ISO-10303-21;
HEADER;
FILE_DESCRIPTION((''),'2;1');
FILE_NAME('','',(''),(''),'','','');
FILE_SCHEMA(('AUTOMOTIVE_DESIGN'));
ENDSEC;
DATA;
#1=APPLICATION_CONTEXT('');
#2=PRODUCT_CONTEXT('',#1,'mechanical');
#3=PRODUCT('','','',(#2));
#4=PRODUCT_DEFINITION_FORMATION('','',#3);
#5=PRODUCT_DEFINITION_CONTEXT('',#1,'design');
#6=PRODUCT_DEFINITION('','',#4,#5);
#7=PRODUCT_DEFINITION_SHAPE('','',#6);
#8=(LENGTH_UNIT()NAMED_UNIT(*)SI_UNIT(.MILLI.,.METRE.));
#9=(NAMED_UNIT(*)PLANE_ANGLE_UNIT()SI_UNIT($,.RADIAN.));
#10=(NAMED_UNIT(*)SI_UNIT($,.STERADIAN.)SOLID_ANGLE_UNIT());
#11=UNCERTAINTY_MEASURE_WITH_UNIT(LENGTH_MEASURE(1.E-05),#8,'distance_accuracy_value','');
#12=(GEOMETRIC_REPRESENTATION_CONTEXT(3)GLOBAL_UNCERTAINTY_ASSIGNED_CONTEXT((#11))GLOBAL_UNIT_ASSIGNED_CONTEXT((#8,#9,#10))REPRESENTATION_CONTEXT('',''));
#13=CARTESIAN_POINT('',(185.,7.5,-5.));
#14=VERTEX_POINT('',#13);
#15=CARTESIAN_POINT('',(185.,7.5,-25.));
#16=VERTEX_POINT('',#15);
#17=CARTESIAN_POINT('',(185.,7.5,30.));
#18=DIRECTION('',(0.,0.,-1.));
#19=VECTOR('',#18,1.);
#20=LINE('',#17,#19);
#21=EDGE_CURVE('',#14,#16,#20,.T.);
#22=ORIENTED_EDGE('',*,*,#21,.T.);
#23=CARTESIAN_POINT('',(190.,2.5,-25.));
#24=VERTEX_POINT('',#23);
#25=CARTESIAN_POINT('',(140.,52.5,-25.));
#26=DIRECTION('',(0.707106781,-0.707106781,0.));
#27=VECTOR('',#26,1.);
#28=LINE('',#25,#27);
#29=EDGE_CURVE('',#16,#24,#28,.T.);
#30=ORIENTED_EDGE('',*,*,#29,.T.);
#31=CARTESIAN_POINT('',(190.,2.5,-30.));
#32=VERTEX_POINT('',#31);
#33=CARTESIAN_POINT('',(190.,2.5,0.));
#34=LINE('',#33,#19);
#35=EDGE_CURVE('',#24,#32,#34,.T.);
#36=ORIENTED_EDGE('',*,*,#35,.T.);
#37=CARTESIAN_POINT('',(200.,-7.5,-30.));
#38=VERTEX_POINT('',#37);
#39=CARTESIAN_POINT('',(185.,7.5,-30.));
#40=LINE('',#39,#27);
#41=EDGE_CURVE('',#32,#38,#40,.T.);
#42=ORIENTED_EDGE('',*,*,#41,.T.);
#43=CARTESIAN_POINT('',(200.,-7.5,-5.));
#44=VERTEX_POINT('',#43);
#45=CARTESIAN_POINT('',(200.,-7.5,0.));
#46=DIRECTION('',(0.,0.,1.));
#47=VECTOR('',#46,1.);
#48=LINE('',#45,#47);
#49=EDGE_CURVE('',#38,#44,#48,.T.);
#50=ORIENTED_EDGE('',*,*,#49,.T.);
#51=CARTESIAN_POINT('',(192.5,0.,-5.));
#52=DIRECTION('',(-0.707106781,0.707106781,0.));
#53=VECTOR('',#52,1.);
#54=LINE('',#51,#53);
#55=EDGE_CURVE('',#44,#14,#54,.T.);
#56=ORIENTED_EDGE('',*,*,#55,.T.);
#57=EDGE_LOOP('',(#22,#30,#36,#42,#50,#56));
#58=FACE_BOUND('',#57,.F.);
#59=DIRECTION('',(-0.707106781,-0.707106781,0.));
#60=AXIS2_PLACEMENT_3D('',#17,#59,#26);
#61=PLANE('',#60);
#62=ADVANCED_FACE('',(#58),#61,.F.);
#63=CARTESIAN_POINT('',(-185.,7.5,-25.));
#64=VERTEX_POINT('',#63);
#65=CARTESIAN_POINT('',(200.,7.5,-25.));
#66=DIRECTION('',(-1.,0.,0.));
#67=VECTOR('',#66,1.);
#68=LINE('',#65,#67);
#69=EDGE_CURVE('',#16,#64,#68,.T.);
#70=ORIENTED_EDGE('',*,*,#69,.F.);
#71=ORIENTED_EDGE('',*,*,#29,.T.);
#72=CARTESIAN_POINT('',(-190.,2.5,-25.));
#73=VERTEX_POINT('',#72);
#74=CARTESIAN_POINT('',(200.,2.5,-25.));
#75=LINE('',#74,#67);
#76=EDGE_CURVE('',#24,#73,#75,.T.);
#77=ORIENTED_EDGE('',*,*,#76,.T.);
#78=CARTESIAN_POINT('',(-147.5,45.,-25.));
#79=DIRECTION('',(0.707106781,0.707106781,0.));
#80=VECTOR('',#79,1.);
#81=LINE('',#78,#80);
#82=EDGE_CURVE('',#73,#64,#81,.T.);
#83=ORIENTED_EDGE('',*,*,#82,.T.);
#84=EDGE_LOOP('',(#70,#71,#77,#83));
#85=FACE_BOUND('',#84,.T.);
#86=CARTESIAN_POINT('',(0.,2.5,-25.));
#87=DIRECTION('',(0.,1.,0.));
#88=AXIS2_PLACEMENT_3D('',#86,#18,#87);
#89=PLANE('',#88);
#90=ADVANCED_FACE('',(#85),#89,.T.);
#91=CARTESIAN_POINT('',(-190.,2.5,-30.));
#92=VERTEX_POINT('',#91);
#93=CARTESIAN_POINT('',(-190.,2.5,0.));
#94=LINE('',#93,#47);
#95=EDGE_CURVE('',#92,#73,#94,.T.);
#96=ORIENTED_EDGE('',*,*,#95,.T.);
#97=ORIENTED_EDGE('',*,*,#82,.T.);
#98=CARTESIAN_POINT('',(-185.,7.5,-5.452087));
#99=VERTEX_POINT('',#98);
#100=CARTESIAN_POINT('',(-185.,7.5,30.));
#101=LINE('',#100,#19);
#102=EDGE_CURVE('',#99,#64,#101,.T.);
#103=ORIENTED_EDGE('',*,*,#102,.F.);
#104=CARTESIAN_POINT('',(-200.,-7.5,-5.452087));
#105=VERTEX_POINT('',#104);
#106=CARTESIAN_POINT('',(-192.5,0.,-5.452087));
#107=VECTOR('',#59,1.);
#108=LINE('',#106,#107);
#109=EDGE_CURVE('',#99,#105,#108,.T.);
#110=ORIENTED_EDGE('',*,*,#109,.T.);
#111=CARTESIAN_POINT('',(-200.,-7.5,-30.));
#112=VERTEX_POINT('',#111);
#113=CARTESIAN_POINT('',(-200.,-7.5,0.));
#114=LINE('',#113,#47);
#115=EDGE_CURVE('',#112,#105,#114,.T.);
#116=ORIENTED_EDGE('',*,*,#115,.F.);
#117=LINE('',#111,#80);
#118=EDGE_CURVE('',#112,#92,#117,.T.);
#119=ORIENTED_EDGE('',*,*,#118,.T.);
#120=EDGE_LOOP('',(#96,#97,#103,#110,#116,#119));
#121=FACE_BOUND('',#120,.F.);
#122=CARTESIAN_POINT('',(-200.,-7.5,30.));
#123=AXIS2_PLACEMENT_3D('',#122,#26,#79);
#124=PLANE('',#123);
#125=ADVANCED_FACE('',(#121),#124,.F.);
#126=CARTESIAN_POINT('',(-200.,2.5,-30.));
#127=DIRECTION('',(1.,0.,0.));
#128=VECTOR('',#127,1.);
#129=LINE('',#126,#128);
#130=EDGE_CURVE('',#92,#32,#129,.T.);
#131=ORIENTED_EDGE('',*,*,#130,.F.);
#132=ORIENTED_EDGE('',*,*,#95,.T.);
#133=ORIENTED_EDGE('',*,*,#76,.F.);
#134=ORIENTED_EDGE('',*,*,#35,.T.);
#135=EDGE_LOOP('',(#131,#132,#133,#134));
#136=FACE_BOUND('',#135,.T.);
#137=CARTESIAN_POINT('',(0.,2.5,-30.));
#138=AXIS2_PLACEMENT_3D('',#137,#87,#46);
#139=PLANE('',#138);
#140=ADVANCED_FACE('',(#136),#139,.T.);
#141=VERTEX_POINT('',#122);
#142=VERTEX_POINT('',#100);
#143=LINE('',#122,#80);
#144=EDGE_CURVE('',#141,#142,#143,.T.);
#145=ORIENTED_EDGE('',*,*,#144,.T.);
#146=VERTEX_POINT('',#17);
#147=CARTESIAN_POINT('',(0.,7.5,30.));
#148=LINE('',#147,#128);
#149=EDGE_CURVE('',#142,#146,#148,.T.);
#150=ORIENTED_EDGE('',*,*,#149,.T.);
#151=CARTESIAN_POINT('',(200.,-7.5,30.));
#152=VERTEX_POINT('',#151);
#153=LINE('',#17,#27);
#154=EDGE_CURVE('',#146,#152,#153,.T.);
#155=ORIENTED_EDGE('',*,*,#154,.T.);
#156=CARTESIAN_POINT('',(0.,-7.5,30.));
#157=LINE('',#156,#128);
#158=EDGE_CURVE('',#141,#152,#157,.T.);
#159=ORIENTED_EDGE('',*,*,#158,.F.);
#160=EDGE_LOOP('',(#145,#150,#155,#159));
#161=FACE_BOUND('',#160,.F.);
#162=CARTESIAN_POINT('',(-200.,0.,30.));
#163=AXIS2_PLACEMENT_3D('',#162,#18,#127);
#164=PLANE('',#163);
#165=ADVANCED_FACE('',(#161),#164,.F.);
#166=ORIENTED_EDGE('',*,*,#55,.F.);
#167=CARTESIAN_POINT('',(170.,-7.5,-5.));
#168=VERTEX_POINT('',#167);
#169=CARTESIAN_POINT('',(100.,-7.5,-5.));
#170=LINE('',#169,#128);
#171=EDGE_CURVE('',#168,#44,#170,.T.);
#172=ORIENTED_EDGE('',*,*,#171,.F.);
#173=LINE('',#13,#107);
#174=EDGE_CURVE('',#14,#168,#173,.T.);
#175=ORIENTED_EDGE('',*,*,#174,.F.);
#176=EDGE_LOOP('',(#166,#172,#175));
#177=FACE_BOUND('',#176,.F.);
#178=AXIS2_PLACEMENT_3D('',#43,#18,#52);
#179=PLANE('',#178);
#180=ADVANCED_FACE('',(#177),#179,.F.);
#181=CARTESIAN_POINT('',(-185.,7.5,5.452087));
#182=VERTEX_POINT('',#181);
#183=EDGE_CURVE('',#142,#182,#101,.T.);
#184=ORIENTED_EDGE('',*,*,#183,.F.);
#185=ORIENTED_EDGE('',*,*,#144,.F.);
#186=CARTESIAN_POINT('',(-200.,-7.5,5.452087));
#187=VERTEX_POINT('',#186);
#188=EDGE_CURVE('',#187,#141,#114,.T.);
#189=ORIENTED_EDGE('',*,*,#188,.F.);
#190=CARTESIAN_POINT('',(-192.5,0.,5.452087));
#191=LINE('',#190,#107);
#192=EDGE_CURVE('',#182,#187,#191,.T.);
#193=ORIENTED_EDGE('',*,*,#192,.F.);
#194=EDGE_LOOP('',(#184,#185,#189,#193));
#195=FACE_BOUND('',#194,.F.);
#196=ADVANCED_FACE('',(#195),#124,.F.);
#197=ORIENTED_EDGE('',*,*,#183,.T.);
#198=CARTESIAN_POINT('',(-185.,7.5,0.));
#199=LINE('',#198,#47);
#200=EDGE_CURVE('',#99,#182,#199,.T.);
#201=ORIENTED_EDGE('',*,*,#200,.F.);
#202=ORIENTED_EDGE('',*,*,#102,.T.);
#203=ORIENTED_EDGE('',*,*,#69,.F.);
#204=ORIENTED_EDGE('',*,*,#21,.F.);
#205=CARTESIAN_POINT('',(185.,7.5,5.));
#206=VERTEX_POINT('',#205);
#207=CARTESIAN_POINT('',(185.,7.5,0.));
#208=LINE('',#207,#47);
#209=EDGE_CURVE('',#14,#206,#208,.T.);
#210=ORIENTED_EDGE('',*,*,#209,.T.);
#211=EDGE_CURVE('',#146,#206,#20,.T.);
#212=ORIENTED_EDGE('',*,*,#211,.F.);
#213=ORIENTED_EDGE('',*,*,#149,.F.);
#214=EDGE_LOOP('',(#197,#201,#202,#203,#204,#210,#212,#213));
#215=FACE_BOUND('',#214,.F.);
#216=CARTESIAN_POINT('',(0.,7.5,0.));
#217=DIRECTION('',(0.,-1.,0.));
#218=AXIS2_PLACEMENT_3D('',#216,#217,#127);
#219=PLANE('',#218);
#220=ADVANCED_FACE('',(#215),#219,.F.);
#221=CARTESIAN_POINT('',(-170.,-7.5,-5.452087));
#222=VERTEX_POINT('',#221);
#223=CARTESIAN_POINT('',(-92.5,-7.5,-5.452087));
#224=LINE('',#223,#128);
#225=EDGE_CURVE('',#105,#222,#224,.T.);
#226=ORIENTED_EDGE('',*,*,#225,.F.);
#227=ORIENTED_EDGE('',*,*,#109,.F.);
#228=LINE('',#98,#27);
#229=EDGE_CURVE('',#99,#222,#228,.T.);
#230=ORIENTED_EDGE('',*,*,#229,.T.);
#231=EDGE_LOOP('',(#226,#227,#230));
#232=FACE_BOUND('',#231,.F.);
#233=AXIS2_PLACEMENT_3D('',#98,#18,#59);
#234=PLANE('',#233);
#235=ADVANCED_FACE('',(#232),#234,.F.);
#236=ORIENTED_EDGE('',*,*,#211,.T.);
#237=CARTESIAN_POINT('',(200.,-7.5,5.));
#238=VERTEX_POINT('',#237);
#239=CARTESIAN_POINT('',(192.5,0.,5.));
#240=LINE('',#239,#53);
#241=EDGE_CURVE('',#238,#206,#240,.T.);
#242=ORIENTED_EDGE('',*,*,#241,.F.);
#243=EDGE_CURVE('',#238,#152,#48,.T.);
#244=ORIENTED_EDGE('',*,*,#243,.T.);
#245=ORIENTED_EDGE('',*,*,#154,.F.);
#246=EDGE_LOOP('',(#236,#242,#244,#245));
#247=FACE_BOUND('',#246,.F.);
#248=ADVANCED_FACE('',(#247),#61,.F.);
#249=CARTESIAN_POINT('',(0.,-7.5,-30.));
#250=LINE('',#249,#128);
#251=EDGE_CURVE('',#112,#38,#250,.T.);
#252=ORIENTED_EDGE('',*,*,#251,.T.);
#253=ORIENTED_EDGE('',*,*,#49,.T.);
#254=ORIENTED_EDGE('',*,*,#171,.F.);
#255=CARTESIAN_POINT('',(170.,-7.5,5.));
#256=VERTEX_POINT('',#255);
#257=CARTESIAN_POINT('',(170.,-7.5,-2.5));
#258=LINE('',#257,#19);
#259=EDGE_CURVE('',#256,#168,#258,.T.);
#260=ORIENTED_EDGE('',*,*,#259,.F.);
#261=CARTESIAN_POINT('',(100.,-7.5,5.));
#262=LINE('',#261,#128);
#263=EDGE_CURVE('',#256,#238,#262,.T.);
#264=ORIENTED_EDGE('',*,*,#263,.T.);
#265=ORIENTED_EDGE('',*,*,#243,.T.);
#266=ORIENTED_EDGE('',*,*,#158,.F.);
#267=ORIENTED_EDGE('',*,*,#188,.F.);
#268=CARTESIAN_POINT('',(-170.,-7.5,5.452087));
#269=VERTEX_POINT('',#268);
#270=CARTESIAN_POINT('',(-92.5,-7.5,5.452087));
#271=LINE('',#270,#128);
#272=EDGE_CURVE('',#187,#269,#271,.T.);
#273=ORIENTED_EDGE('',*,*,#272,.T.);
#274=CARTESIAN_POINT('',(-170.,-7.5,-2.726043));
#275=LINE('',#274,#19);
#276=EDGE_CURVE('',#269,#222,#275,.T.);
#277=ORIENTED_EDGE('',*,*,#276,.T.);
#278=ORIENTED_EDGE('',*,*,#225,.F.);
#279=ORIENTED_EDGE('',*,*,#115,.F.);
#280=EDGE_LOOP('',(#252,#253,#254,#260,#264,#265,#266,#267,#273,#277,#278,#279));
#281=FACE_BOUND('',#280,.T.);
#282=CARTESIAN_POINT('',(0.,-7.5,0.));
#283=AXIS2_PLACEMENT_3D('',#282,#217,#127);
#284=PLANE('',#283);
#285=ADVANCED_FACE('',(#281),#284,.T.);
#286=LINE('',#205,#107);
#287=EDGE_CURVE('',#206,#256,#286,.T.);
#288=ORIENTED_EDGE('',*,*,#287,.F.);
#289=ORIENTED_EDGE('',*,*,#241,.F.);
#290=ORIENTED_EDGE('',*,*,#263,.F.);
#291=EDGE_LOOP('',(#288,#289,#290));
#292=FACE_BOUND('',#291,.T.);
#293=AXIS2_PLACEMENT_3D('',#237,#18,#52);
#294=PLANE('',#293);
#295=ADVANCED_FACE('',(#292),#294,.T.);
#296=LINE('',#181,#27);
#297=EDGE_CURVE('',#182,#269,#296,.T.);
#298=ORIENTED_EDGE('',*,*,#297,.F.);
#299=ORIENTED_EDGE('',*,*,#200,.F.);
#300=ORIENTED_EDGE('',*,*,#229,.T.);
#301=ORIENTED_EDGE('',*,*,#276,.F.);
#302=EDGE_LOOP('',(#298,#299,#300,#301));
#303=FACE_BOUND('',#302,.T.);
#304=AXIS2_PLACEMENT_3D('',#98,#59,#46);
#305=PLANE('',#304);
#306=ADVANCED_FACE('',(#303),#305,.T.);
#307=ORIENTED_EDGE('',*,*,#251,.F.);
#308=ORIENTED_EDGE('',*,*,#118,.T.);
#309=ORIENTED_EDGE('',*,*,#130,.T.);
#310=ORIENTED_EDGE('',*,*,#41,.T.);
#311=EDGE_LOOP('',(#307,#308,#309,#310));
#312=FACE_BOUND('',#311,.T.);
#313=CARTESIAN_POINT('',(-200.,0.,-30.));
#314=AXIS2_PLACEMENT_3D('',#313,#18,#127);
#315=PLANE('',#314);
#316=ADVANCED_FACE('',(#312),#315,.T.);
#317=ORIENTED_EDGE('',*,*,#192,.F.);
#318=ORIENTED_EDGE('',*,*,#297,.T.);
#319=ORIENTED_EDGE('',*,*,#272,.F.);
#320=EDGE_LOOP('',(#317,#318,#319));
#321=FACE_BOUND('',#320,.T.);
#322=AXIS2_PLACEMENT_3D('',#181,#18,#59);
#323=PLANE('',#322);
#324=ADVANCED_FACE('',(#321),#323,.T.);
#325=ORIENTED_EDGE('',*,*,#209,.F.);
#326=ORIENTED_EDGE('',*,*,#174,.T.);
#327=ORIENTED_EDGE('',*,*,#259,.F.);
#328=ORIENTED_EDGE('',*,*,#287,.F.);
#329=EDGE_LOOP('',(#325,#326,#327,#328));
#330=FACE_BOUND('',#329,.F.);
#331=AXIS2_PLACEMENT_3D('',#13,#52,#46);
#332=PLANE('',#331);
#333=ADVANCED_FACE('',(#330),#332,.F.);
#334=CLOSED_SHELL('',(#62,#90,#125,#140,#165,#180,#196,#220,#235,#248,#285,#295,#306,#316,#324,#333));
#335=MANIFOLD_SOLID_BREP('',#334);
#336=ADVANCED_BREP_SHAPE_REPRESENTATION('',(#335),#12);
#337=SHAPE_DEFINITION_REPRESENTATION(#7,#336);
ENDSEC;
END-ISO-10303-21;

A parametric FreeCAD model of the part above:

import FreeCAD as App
import Part
import Sketcher

V = App.Vector
Q = App.Units.Quantity

doc = App.newDocument("Part")
body = doc.addObject("PartDesign::Body", "Body")

# Sketch on XZ plane
sketch1 = body.newObject("Sketcher::SketchObject", "Sketch")
sketch1.AttachmentSupport = (doc.getObject("XZ_Plane"), [""])
sketch1.MapMode = "FlatFace"
sketch1.addGeometry([
    Part.LineSegment(V(-200, 30, 0), V(-200, -30, 0)),
    Part.LineSegment(V(-200, -30, 0), V(200, -30, 0)),
    Part.LineSegment(V(200, -30, 0), V(200, 30, 0)),
    Part.LineSegment(V(200, 30, 0), V(-200, 30, 0)),
], False)
sketch1.addConstraint([
    Sketcher.Constraint("Coincident", 0, 2, 1, 1),
    Sketcher.Constraint("Coincident", 1, 2, 2, 1),
    Sketcher.Constraint("Coincident", 2, 2, 3, 1),
    Sketcher.Constraint("Coincident", 3, 2, 0, 1),
    Sketcher.Constraint("Vertical", 0),
    Sketcher.Constraint("Horizontal", 1),
    Sketcher.Constraint("Vertical", 2),
    Sketcher.Constraint("Horizontal", 3),
    Sketcher.Constraint("Symmetric", 0, 2, 2, 2, -1, 1),
    Sketcher.Constraint("DistanceX", 1, 1, 1, 2, Q("400 mm")),
    Sketcher.Constraint("DistanceY", 0, 2, 0, 1, Q("60 mm")),
])
pad1 = body.newObject("PartDesign::Pad", "Pad")
pad1.Profile = sketch1
pad1.Length = 15
pad1.Midplane = True

# Sketch on XY plane
sketch2 = body.newObject("Sketcher::SketchObject", "Sketch001")
sketch2.AttachmentSupport = (doc.getObject("XY_Plane"), [""])
sketch2.MapMode = "FlatFace"
sketch2.AttachmentOffset = App.Placement(V(0, 0, 30), App.Rotation())
sketch2.addGeometry([
    Part.LineSegment(V(-200, 7.5, 0), V(-200, -7.5, 0)),  # 0
    Part.LineSegment(V(-200, -7.5, 0), V(-185, 7.5, 0)),  # 1
    Part.LineSegment(V(-185, 7.5, 0), V(-200, 7.5, 0)),  # 2
    Part.LineSegment(V(185, 7.5, 0), V(200, -7.5, 0)),  # 3
    Part.LineSegment(V(200, -7.5, 0), V(200, 7.5, 0)),  # 4
    Part.LineSegment(V(200, 7.5, 0), V(185, 7.5, 0)),  # 5
], False)
sketch2.addConstraint([
    Sketcher.Constraint("Coincident", 0, 2, 1, 1),
    Sketcher.Constraint("Coincident", 1, 2, 2, 1),
    Sketcher.Constraint("Coincident", 2, 2, 0, 1),
    Sketcher.Constraint("Coincident", 3, 2, 4, 1),
    Sketcher.Constraint("Coincident", 4, 2, 5, 1),
    Sketcher.Constraint("Coincident", 5, 2, 3, 1),
    Sketcher.Constraint("Vertical", 0),
    Sketcher.Constraint("Horizontal", 2),
    Sketcher.Constraint("Vertical", 4),
    Sketcher.Constraint("Horizontal", 5),
    Sketcher.Constraint("Symmetric", 2, 2, 3, 2, -1, 1),
    Sketcher.Constraint("Symmetric", 1, 2, 5, 2, -2),
    Sketcher.Constraint("Perpendicular", 1, 3),
    Sketcher.Constraint("Horizontal", 0, 2, 3, 2),
    Sketcher.Constraint("DistanceX", 2, 2, 2, 1, Q("15 mm")),
    Sketcher.Constraint("DistanceX", 0, 2, -1, 1, Q("200 mm")),
])
pocket1 = body.newObject("PartDesign::Pocket", "Pocket")
pocket1.Profile = sketch2
pocket1.Length = 60

# Sketch on an angled plane
sketch3 = body.newObject("Sketcher::SketchObject", "Sketch002")
sketch3.Placement = App.Placement(V(96.25, 96.25, 0), App.Rotation(V(-0.707106781, 0.707106781, 0), V(0, 0, 0.999999999), V(0.707106781, 0.707106781, 0), "ZXY"))
sketch3.addGeometry([
    Part.LineSegment(V(-146.724656, 5, 0), V(-146.724656, -5, 0)),
    Part.LineSegment(V(-146.724656, -5, 0), V(-125.511453, -5, 0)),
    Part.LineSegment(V(-125.511453, -5, 0), V(-125.511453, 5, 0)),
    Part.LineSegment(V(-125.511453, 5, 0), V(-146.724656, 5, 0)),
], False)
sketch3.addConstraint([
    Sketcher.Constraint("Coincident", 0, 2, 1, 1),
    Sketcher.Constraint("Coincident", 1, 2, 2, 1),
    Sketcher.Constraint("Coincident", 2, 2, 3, 1),
    Sketcher.Constraint("Coincident", 3, 2, 0, 1),
    Sketcher.Constraint("Vertical", 0),
    Sketcher.Constraint("Horizontal", 1),
    Sketcher.Constraint("Vertical", 2),
    Sketcher.Constraint("Horizontal", 3),
    Sketcher.Constraint("DistanceY", 0, 2, 0, 1, Q("10 mm")),
    Sketcher.Constraint("DistanceY", 0, 2, -1, 1, Q("5 mm")),
    Sketcher.Constraint("DistanceX", 1, 1, 1, 2, Q("21.213203 mm")),
    Sketcher.Constraint("DistanceX", 0, 2, -1, 1, Q("146.724656 mm")),
])
pocket2 = body.newObject("PartDesign::Pocket", "Pocket001")
pocket2.Profile = sketch3
pocket2.Length = 25

# Sketch on an angled plane
sketch4 = body.newObject("Sketcher::SketchObject", "Sketch003")
sketch4.Placement = App.Placement(V(-96.25, 96.25, 0), App.Rotation(V(-0.707106781, -0.707106781, 0), V(0, 0, 0.999999999), V(-0.707106781, 0.707106781, 0), "ZXY"))
sketch4.addGeometry([
    Part.LineSegment(V(125.511453, 5.452087, 0), V(125.511453, -5.452087, 0)),
    Part.LineSegment(V(125.511453, -5.452087, 0), V(146.724656, -5.452087, 0)),
    Part.LineSegment(V(146.724656, -5.452087, 0), V(146.724656, 5.452087, 0)),
    Part.LineSegment(V(146.724656, 5.452087, 0), V(125.511453, 5.452087, 0)),
], False)
sketch4.addConstraint([
    Sketcher.Constraint("Coincident", 0, 2, 1, 1),
    Sketcher.Constraint("Coincident", 1, 2, 2, 1),
    Sketcher.Constraint("Coincident", 2, 2, 3, 1),
    Sketcher.Constraint("Coincident", 3, 2, 0, 1),
    Sketcher.Constraint("Vertical", 0),
    Sketcher.Constraint("Horizontal", 1),
    Sketcher.Constraint("Vertical", 2),
    Sketcher.Constraint("Horizontal", 3),
    Sketcher.Constraint("DistanceX", 1, 1, 1, 2, Q("21.213203 mm")),
    Sketcher.Constraint("DistanceY", 0, 2, 0, 1, Q("10.904174 mm")),
    Sketcher.Constraint("DistanceX", -1, 1, 0, 2, Q("125.511453 mm")),
    Sketcher.Constraint("DistanceY", 0, 2, -1, 1, Q("5.452087 mm")),
])
pocket3 = body.newObject("PartDesign::Pocket", "Pocket002")
pocket3.Profile = sketch4
pocket3.Length = 25

# Sketch on YZ plane
sketch5 = body.newObject("Sketcher::SketchObject", "Sketch004")
sketch5.AttachmentSupport = (doc.getObject("YZ_Plane"), [""])
sketch5.MapMode = "FlatFace"
sketch5.addGeometry([
    Part.LineSegment(V(2.5, -25, 0), V(2.5, -30, 0)),
    Part.LineSegment(V(2.5, -30, 0), V(7.5, -30, 0)),
    Part.LineSegment(V(7.5, -30, 0), V(7.5, -25, 0)),
    Part.LineSegment(V(7.5, -25, 0), V(2.5, -25, 0)),
], False)
sketch5.addConstraint([
    Sketcher.Constraint("Coincident", 0, 2, 1, 1),
    Sketcher.Constraint("Coincident", 1, 2, 2, 1),
    Sketcher.Constraint("Coincident", 2, 2, 3, 1),
    Sketcher.Constraint("Coincident", 3, 2, 0, 1),
    Sketcher.Constraint("Vertical", 0),
    Sketcher.Constraint("Horizontal", 1),
    Sketcher.Constraint("Vertical", 2),
    Sketcher.Constraint("Horizontal", 3),
    Sketcher.Constraint("Equal", 3, 0),
    Sketcher.Constraint("DistanceX", 1, 1, 1, 2, Q("5 mm")),
    Sketcher.Constraint("DistanceY", 0, 2, -1, 1, Q("30 mm")),
    Sketcher.Constraint("DistanceX", -1, 1, 0, 2, Q("2.5 mm")),
])
pocket4 = body.newObject("PartDesign::Pocket", "Pocket003")
pocket4.Profile = sketch5
pocket4.Length = 400
pocket4.Midplane = True

doc.recompute()
